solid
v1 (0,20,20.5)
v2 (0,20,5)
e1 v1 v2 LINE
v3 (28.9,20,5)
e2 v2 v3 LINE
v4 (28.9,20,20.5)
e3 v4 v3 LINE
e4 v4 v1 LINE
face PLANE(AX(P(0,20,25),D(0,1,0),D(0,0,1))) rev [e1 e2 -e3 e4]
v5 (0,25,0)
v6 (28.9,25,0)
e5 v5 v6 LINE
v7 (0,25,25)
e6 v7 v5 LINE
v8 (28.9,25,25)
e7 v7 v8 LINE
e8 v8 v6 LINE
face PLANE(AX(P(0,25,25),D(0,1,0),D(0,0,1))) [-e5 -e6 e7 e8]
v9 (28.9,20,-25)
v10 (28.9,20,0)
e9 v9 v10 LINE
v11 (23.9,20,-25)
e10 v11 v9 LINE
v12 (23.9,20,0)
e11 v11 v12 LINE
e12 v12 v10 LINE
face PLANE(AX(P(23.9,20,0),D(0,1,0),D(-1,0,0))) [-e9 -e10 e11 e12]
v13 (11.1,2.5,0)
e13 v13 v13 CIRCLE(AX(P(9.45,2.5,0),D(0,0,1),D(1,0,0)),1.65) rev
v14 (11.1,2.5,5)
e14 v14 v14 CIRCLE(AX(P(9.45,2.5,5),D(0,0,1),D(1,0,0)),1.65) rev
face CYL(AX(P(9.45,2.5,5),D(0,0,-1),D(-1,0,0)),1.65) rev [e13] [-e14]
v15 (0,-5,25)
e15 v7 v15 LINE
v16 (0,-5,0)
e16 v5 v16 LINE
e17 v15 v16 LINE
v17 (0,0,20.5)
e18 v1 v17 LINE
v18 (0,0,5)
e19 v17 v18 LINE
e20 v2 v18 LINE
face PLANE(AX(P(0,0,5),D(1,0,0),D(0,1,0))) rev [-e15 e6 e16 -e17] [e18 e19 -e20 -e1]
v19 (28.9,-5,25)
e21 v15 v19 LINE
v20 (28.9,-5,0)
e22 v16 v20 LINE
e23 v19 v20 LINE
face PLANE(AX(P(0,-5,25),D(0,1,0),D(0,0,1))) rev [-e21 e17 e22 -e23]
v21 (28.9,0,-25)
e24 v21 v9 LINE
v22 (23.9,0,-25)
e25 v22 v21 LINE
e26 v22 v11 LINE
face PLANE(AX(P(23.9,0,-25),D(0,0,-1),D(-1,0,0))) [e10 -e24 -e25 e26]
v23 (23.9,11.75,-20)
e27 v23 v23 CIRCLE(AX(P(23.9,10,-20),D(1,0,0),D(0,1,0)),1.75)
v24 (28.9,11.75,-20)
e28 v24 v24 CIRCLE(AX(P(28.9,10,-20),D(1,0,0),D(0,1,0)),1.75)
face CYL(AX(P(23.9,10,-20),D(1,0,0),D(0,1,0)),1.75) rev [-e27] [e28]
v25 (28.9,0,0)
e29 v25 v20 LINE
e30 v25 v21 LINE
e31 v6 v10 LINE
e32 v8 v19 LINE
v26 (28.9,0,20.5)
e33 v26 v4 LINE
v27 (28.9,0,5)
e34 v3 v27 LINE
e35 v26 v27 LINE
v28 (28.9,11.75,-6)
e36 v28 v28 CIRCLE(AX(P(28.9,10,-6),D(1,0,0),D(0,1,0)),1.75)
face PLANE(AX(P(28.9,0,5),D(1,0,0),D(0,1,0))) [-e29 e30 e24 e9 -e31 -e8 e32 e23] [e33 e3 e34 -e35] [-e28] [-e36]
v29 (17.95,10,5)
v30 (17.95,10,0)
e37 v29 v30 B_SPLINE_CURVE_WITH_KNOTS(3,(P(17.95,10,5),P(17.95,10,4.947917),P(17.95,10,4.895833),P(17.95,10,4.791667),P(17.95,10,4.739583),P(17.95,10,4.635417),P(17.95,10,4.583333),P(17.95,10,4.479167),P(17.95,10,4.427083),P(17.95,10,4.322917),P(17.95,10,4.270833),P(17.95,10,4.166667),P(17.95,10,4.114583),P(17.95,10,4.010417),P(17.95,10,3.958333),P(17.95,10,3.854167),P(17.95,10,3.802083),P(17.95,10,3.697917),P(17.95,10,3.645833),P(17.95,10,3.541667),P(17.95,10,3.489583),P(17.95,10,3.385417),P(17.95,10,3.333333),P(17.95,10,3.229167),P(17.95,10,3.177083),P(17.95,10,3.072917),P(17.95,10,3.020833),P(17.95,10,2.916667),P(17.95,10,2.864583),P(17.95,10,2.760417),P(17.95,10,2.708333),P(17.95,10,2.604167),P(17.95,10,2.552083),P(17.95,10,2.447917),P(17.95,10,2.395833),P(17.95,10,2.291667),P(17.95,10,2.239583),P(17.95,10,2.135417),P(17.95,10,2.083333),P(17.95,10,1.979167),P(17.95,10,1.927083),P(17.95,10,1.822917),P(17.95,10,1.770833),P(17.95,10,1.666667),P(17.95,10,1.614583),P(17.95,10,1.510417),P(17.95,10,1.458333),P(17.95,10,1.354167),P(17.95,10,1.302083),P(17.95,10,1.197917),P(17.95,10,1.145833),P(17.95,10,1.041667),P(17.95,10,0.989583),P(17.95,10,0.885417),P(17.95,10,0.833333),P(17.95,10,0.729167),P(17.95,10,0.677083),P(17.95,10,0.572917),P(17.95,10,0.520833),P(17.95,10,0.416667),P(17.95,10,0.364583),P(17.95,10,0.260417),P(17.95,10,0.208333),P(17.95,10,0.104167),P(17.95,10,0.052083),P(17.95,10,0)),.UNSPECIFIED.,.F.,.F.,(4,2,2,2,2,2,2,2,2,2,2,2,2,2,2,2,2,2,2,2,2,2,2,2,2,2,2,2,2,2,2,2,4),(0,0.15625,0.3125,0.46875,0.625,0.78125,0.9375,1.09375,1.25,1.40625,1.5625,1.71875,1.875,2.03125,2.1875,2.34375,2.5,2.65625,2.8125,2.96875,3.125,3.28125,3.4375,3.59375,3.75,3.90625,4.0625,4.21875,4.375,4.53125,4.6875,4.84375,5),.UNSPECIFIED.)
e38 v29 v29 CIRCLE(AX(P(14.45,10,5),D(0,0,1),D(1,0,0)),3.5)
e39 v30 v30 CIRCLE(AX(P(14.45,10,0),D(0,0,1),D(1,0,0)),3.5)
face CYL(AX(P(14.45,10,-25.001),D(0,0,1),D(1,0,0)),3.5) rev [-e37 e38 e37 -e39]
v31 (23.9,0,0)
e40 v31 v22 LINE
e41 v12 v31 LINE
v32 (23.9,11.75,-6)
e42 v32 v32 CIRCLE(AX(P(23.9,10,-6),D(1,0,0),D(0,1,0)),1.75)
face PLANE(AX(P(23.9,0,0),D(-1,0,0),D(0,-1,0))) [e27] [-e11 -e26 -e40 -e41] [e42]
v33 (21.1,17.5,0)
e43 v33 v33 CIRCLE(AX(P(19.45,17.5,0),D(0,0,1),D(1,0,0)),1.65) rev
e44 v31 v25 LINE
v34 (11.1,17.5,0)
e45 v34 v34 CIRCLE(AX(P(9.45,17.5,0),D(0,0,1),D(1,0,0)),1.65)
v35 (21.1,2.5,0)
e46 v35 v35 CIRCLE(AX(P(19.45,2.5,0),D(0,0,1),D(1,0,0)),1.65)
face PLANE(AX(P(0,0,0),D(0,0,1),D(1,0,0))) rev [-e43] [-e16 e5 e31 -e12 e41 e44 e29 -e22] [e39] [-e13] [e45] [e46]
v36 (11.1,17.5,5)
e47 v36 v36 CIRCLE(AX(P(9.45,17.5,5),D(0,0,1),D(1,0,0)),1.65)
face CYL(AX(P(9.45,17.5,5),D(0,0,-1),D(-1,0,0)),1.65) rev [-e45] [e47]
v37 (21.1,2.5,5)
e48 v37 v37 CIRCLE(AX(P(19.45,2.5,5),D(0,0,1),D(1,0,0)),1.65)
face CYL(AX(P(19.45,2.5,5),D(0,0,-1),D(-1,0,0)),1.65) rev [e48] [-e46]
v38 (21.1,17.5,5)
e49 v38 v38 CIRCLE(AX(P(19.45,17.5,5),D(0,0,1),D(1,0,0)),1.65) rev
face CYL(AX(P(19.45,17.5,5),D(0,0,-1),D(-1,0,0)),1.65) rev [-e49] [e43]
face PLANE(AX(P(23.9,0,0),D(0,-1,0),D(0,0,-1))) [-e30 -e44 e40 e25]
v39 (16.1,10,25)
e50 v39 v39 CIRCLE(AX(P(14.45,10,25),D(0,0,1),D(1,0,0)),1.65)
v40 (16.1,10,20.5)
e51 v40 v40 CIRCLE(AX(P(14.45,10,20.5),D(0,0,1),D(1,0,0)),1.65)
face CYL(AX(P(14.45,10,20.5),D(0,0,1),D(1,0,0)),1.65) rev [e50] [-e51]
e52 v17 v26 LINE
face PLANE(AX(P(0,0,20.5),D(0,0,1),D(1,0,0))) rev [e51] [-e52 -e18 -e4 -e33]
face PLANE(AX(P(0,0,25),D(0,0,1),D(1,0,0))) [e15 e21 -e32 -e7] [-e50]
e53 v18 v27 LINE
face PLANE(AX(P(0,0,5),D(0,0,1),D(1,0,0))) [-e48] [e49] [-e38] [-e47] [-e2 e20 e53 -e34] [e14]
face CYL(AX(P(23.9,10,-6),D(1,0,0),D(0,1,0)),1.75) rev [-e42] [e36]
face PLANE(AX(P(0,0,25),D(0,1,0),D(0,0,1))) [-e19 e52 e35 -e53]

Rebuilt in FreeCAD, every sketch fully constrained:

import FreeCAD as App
import Part
import Sketcher

doc = App.newDocument("Part")
body = doc.addObject("PartDesign::Body", "Body")

# Sketch on XY plane
sketch1 = doc.addObject("Sketcher::SketchObject", "Sketch")
body.addObject(sketch1)
sketch1.AttachmentSupport = (doc.XY_Plane, [""])
sketch1.MapMode = "FlatFace"
sketch1.addGeometry([
    Part.LineSegment(App.Vector(0, 20, 0), App.Vector(0, 0, 0)),  # 0
    Part.LineSegment(App.Vector(0, 0, 0), App.Vector(28.9, 0, 0)),  # 1
    Part.LineSegment(App.Vector(28.9, 0, 0), App.Vector(28.9, 20, 0)),  # 2
    Part.LineSegment(App.Vector(28.9, 20, 0), App.Vector(0, 20, 0)),  # 3
    Part.Circle(App.Vector(9.45, 2.5, 0), App.Vector(0, 0, 1), 1.65),  # 4
    Part.Circle(App.Vector(19.45, 2.5, 0), App.Vector(0, 0, 1), 1.65),  # 5
    Part.Circle(App.Vector(9.45, 17.5, 0), App.Vector(0, 0, 1), 1.65),  # 6
    Part.Circle(App.Vector(19.45, 17.5, 0), App.Vector(0, 0, 1), 1.65),  # 7
], False)
sketch1.addConstraint([
    Sketcher.Constraint("Coincident", 0, 2, 1, 1),
    Sketcher.Constraint("Coincident", 1, 2, 2, 1),
    Sketcher.Constraint("Coincident", 2, 2, 3, 1),
    Sketcher.Constraint("Coincident", 3, 2, 0, 1),
    Sketcher.Constraint("Vertical", 0),
    Sketcher.Constraint("Horizontal", 1),
    Sketcher.Constraint("Vertical", 2),
    Sketcher.Constraint("Horizontal", 3),
    Sketcher.Constraint("Coincident", 0, 2, -1, 1),
    Sketcher.Constraint("Equal", 4, 5),
    Sketcher.Constraint("Equal", 5, 6),
    Sketcher.Constraint("Equal", 6, 7),
    Sketcher.Constraint("Horizontal", 4, 3, 5, 3),
    Sketcher.Constraint("Horizontal", 6, 3, 7, 3),
    Sketcher.Constraint("Vertical", 4, 3, 6, 3),
    Sketcher.Constraint("Vertical", 5, 3, 7, 3),
    Sketcher.Constraint("Diameter", 4, 3.3),
    Sketcher.Constraint("DistanceY", 0, 2, 0, 1, 20.0),
    Sketcher.Constraint("DistanceX", 1, 1, 1, 2, 28.9),
    Sketcher.Constraint("DistanceX", 4, 3, 5, 3, 10.0),
    Sketcher.Constraint("DistanceY", 4, 3, 6, 3, 15.0),
    Sketcher.Constraint("DistanceY", -1, 1, 4, 3, 2.5),
    Sketcher.Constraint("DistanceX", -1, 1, 4, 3, 9.45),
])
pad1 = doc.addObject("PartDesign::Pad", "Pad")
body.addObject(pad1)
pad1.Profile = sketch1
pad1.Length = 5

# Sketch on XY plane
sketch2 = doc.addObject("Sketcher::SketchObject", "Sketch001")
body.addObject(sketch2)
sketch2.AttachmentSupport = (doc.XY_Plane, [""])
sketch2.MapMode = "FlatFace"
sketch2.addGeometry([
    Part.LineSegment(App.Vector(0, 0, 0), App.Vector(0, -5, 0)),  # 0
    Part.LineSegment(App.Vector(0, -5, 0), App.Vector(28.9, -5, 0)),  # 1
    Part.LineSegment(App.Vector(28.9, -5, 0), App.Vector(28.9, 0, 0)),  # 2
    Part.LineSegment(App.Vector(28.9, 0, 0), App.Vector(0, 0, 0)),  # 3
    Part.LineSegment(App.Vector(0, 25, 0), App.Vector(0, 20, 0)),  # 4
    Part.LineSegment(App.Vector(0, 20, 0), App.Vector(28.9, 20, 0)),  # 5
    Part.LineSegment(App.Vector(28.9, 20, 0), App.Vector(28.9, 25, 0)),  # 6
    Part.LineSegment(App.Vector(28.9, 25, 0), App.Vector(0, 25, 0)),  # 7
], False)
sketch2.addConstraint([
    Sketcher.Constraint("Coincident", 0, 2, 1, 1),
    Sketcher.Constraint("Coincident", 1, 2, 2, 1),
    Sketcher.Constraint("Coincident", 2, 2, 3, 1),
    Sketcher.Constraint("Coincident", 3, 2, 0, 1),
    Sketcher.Constraint("Coincident", 4, 2, 5, 1),
    Sketcher.Constraint("Coincident", 5, 2, 6, 1),
    Sketcher.Constraint("Coincident", 6, 2, 7, 1),
    Sketcher.Constraint("Coincident", 7, 2, 4, 1),
    Sketcher.Constraint("Vertical", 0),
    Sketcher.Constraint("Horizontal", 1),
    Sketcher.Constraint("Vertical", 2),
    Sketcher.Constraint("Horizontal", 3),
    Sketcher.Constraint("Vertical", 4),
    Sketcher.Constraint("Horizontal", 5),
    Sketcher.Constraint("Vertical", 6),
    Sketcher.Constraint("Horizontal", 7),
    Sketcher.Constraint("Coincident", 3, 2, -1, 1),
    Sketcher.Constraint("PointOnObject", 4, 2, -2),
    Sketcher.Constraint("Vertical", 2, 2, 5, 2),
    Sketcher.Constraint("Equal", 2, 4),
    Sketcher.Constraint("DistanceY", 0, 2, 0, 1, 5.0),
    Sketcher.Constraint("DistanceX", 1, 1, 1, 2, 28.9),
    Sketcher.Constraint("DistanceY", -1, 1, 4, 2, 20.0),
])
pad2 = doc.addObject("PartDesign::Pad", "Pad001")
body.addObject(pad2)
pad2.Profile = sketch2
pad2.Length = 25

# Sketch on YZ plane
sketch3 = doc.addObject("Sketcher::SketchObject", "Sketch002")
body.addObject(sketch3)
sketch3.AttachmentSupport = (doc.YZ_Plane, [""])
sketch3.MapMode = "FlatFace"
sketch3.AttachmentOffset = App.Placement(App.Vector(0, 0, 28.9), App.Rotation())
sketch3.addGeometry([
    Part.LineSegment(App.Vector(20, 0, 0), App.Vector(0, 0, 0)),  # 0
    Part.LineSegment(App.Vector(0, 0, 0), App.Vector(0, -25, 0)),  # 1
    Part.LineSegment(App.Vector(0, -25, 0), App.Vector(20, -25, 0)),  # 2
    Part.LineSegment(App.Vector(20, -25, 0), App.Vector(20, 0, 0)),  # 3
    Part.Circle(App.Vector(10, -6, 0), App.Vector(0, 0, 1), 1.75),  # 4
    Part.Circle(App.Vector(10, -20, 0), App.Vector(0, 0, 1), 1.75),  # 5
], False)
sketch3.addConstraint([
    Sketcher.Constraint("Coincident", 0, 2, 1, 1),
    Sketcher.Constraint("Coincident", 1, 2, 2, 1),
    Sketcher.Constraint("Coincident", 2, 2, 3, 1),
    Sketcher.Constraint("Coincident", 3, 2, 0, 1),
    Sketcher.Constraint("Horizontal", 0),
    Sketcher.Constraint("Vertical", 1),
    Sketcher.Constraint("Horizontal", 2),
    Sketcher.Constraint("Vertical", 3),
    Sketcher.Constraint("Coincident", 0, 2, -1, 1),
    Sketcher.Constraint("Equal", 4, 5),
    Sketcher.Constraint("Vertical", 4, 3, 5, 3),
    Sketcher.Constraint("Diameter", 4, 3.5),
    Sketcher.Constraint("DistanceX", 0, 2, 0, 1, 20.0),
    Sketcher.Constraint("DistanceY", 1, 2, 1, 1, 25.0),
    Sketcher.Constraint("DistanceX", -1, 1, 4, 3, 10.0),
    Sketcher.Constraint("DistanceY", 4, 3, -1, 1, 6.0),
    Sketcher.Constraint("DistanceY", 5, 3, -1, 1, 20.0),
])
pad3 = doc.addObject("PartDesign::Pad", "Pad002")
body.addObject(pad3)
pad3.Profile = sketch3
pad3.Length = 5
pad3.Reversed = True

# Sketch on XY plane
sketch4 = doc.addObject("Sketcher::SketchObject", "Sketch003")
body.addObject(sketch4)
sketch4.AttachmentSupport = (doc.XY_Plane, [""])
sketch4.MapMode = "FlatFace"
sketch4.AttachmentOffset = App.Placement(App.Vector(0, 0, 25), App.Rotation())
sketch4.addGeometry([
    Part.LineSegment(App.Vector(0, 20, 0), App.Vector(0, 0, 0)),  # 0
    Part.LineSegment(App.Vector(0, 0, 0), App.Vector(28.9, 0, 0)),  # 1
    Part.LineSegment(App.Vector(28.9, 0, 0), App.Vector(28.9, 20, 0)),  # 2
    Part.LineSegment(App.Vector(28.9, 20, 0), App.Vector(0, 20, 0)),  # 3
    Part.Circle(App.Vector(14.45, 10, 0), App.Vector(0, 0, 1), 1.65),  # 4
], False)
sketch4.addConstraint([
    Sketcher.Constraint("Coincident", 0, 2, 1, 1),
    Sketcher.Constraint("Coincident", 1, 2, 2, 1),
    Sketcher.Constraint("Coincident", 2, 2, 3, 1),
    Sketcher.Constraint("Coincident", 3, 2, 0, 1),
    Sketcher.Constraint("Vertical", 0),
    Sketcher.Constraint("Horizontal", 1),
    Sketcher.Constraint("Vertical", 2),
    Sketcher.Constraint("Horizontal", 3),
    Sketcher.Constraint("Coincident", 0, 2, -1, 1),
    Sketcher.Constraint("Diameter", 4, 3.3),
    Sketcher.Constraint("DistanceY", 0, 2, 0, 1, 20.0),
    Sketcher.Constraint("DistanceX", 1, 1, 1, 2, 28.9),
    Sketcher.Constraint("DistanceY", -1, 1, 4, 3, 10.0),
    Sketcher.Constraint("DistanceX", -1, 1, 4, 3, 14.45),
])
pad4 = doc.addObject("PartDesign::Pad", "Pad003")
body.addObject(pad4)
pad4.Profile = sketch4
pad4.Length = 4.5
pad4.Reversed = True

# Sketch on XY plane
sketch5 = doc.addObject("Sketcher::SketchObject", "Sketch004")
body.addObject(sketch5)
sketch5.AttachmentSupport = (doc.XY_Plane, [""])
sketch5.MapMode = "FlatFace"
sketch5.AttachmentOffset = App.Placement(App.Vector(0, 0, 20.5), App.Rotation())
sketch5.addGeometry(Part.Circle(App.Vector(14.45, 10, 0), App.Vector(0, 0, 1), 3.5), False)
sketch5.addConstraint([
    Sketcher.Constraint("Diameter", 0, 7.0),
    Sketcher.Constraint("DistanceY", -1, 1, 0, 3, 10.0),
    Sketcher.Constraint("DistanceX", -1, 1, 0, 3, 14.45),
])
pocket1 = doc.addObject("PartDesign::Pocket", "Pocket")
body.addObject(pocket1)
pocket1.Profile = sketch5
pocket1.Length = 20.5

doc.recompute()
